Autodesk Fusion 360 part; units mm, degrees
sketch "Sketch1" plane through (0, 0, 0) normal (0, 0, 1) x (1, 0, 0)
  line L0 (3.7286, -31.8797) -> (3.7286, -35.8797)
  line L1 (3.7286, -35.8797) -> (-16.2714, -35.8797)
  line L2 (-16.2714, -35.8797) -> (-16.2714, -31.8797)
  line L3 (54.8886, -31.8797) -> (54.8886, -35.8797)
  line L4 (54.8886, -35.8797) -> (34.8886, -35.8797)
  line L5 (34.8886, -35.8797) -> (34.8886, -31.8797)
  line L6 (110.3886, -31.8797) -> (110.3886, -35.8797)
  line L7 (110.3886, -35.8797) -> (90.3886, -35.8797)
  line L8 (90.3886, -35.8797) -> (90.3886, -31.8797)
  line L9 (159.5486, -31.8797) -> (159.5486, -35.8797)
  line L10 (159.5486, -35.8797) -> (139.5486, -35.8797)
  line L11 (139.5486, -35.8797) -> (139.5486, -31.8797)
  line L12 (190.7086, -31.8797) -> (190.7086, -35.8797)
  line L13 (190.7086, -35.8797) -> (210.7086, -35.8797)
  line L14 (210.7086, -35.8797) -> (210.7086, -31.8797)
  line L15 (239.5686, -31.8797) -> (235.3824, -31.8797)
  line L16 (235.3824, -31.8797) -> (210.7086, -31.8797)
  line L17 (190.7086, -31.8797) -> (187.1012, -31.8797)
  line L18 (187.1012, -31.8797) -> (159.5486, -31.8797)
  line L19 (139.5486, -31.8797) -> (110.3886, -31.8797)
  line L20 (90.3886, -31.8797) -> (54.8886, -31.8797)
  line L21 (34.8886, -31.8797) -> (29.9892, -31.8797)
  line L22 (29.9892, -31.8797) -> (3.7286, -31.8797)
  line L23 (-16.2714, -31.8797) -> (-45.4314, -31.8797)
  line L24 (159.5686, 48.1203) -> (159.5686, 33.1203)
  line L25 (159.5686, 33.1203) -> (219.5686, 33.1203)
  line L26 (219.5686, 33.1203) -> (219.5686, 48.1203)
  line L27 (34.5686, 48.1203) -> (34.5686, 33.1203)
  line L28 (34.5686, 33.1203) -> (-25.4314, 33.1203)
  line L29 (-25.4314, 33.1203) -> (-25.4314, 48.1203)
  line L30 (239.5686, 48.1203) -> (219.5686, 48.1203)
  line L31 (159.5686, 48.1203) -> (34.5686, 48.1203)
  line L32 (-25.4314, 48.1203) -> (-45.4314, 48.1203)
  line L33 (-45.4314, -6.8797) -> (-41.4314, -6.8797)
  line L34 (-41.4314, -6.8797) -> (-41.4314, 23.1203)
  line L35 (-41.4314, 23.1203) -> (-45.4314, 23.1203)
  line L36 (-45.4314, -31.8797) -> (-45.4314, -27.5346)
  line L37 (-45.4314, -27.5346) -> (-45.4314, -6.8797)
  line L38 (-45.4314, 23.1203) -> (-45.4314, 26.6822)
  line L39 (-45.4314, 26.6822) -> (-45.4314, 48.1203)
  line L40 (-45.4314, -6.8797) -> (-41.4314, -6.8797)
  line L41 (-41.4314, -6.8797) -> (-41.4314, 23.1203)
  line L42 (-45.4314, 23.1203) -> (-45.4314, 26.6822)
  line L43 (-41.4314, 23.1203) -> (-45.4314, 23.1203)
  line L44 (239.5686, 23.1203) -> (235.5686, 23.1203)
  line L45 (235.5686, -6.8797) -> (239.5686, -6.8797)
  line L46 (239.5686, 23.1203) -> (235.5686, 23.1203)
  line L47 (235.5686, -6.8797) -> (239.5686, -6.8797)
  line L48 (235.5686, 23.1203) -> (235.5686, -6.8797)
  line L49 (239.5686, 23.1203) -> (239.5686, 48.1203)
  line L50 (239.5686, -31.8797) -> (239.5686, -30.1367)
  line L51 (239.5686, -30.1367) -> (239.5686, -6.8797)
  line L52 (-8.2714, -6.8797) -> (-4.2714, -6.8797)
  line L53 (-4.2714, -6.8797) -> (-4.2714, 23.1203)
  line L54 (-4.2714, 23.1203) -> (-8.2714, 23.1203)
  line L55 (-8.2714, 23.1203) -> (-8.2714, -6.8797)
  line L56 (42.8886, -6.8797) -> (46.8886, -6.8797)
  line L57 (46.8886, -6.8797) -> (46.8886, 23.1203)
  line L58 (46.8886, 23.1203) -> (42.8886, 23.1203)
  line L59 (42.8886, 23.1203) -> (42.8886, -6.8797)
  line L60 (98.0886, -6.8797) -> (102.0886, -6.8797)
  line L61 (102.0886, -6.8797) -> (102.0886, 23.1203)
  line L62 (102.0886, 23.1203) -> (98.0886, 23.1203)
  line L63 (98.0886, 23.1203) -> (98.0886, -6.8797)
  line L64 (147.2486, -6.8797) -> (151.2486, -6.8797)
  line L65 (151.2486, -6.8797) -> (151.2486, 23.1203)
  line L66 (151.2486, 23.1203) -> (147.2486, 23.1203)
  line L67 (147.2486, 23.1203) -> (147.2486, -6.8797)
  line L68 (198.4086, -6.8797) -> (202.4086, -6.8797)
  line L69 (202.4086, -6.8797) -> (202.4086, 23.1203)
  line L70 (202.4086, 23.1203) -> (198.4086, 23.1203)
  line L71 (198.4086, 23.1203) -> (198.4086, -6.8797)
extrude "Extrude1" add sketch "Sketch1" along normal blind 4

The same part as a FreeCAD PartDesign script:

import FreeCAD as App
import Part
import Sketcher
Q = App.Units.Quantity

doc = App.newDocument("Part")
params = doc.addObject("Spreadsheet::Sheet", "Params")
for row, (alias, value) in enumerate([
    ("sketch1_width", "20 mm"),
    ("sketch1_width2", "4 mm"),
    ("sketch1_width3", "60 mm"),
    ("sketch1_width4", "125 mm"),
    ("sketch1_height", "25 mm"),
    ("pad1_length", "4 mm"),
], start=1):
    params.set(f"A{row}", alias)
    params.set(f"B{row}", "=" + value)
    params.setAlias(f"B{row}", alias)

body = doc.addObject("PartDesign::Body", "Body")

# Sketch on XY plane
sketch1 = body.newObject("Sketcher::SketchObject", "Sketch")
sketch1.AttachmentSupport = (doc.getObject("XY_Plane"), [""])
sketch1.MapMode = "FlatFace"
sketch1.addGeometry([
    Part.LineSegment(App.Vector(3.7286, -35.8797, 0), App.Vector(3.7286, -31.8797, 0)),  # 0
    Part.LineSegment(App.Vector(3.7286, -31.8797, 0), App.Vector(34.8886, -31.8797, 0)),  # 1
    Part.LineSegment(App.Vector(34.8886, -31.8797, 0), App.Vector(34.8886, -35.8797, 0)),  # 2
    Part.LineSegment(App.Vector(34.8886, -35.8797, 0), App.Vector(54.8886, -35.8797, 0)),  # 3
    Part.LineSegment(App.Vector(54.8886, -35.8797, 0), App.Vector(54.8886, -31.8797, 0)),  # 4
    Part.LineSegment(App.Vector(54.8886, -31.8797, 0), App.Vector(90.3886, -31.8797, 0)),  # 5
    Part.LineSegment(App.Vector(90.3886, -31.8797, 0), App.Vector(90.3886, -35.8797, 0)),  # 6
    Part.LineSegment(App.Vector(90.3886, -35.8797, 0), App.Vector(110.3886, -35.8797, 0)),  # 7
    Part.LineSegment(App.Vector(110.3886, -35.8797, 0), App.Vector(110.3886, -31.8797, 0)),  # 8
    Part.LineSegment(App.Vector(110.3886, -31.8797, 0), App.Vector(139.5486, -31.8797, 0)),  # 9
    Part.LineSegment(App.Vector(139.5486, -31.8797, 0), App.Vector(139.5486, -35.8797, 0)),  # 10
    Part.LineSegment(App.Vector(139.5486, -35.8797, 0), App.Vector(159.5486, -35.8797, 0)),  # 11
    Part.LineSegment(App.Vector(159.5486, -35.8797, 0), App.Vector(159.5486, -31.8797, 0)),  # 12
    Part.LineSegment(App.Vector(159.5486, -31.8797, 0), App.Vector(190.7086, -31.8797, 0)),  # 13
    Part.LineSegment(App.Vector(190.7086, -31.8797, 0), App.Vector(190.7086, -35.8797, 0)),  # 14
    Part.LineSegment(App.Vector(190.7086, -35.8797, 0), App.Vector(210.7086, -35.8797, 0)),  # 15
    Part.LineSegment(App.Vector(210.7086, -35.8797, 0), App.Vector(210.7086, -31.8797, 0)),  # 16
    Part.LineSegment(App.Vector(210.7086, -31.8797, 0), App.Vector(239.5686, -31.8797, 0)),  # 17
    Part.LineSegment(App.Vector(239.5686, -31.8797, 0), App.Vector(239.5686, -6.8797, 0)),  # 18
    Part.LineSegment(App.Vector(239.5686, -6.8797, 0), App.Vector(235.5686, -6.8797, 0)),  # 19
    Part.LineSegment(App.Vector(235.5686, -6.8797, 0), App.Vector(235.5686, 23.1203, 0)),  # 20
    Part.LineSegment(App.Vector(235.5686, 23.1203, 0), App.Vector(239.5686, 23.1203, 0)),  # 21
    Part.LineSegment(App.Vector(239.5686, 23.1203, 0), App.Vector(239.5686, 48.1203, 0)),  # 22
    Part.LineSegment(App.Vector(239.5686, 48.1203, 0), App.Vector(219.5686, 48.1203, 0)),  # 23
    Part.LineSegment(App.Vector(219.5686, 48.1203, 0), App.Vector(219.5686, 33.1203, 0)),  # 24
    Part.LineSegment(App.Vector(219.5686, 33.1203, 0), App.Vector(159.5686, 33.1203, 0)),  # 25
    Part.LineSegment(App.Vector(159.5686, 33.1203, 0), App.Vector(159.5686, 48.1203, 0)),  # 26
    Part.LineSegment(App.Vector(159.5686, 48.1203, 0), App.Vector(34.5686, 48.1203, 0)),  # 27
    Part.LineSegment(App.Vector(34.5686, 48.1203, 0), App.Vector(34.5686, 33.1203, 0)),  # 28
    Part.LineSegment(App.Vector(34.5686, 33.1203, 0), App.Vector(-25.4314, 33.1203, 0)),  # 29
    Part.LineSegment(App.Vector(-25.4314, 33.1203, 0), App.Vector(-25.4314, 48.1203, 0)),  # 30
    Part.LineSegment(App.Vector(-25.4314, 48.1203, 0), App.Vector(-45.4314, 48.1203, 0)),  # 31
    Part.LineSegment(App.Vector(-45.4314, 48.1203, 0), App.Vector(-45.4314, 23.1203, 0)),  # 32
    Part.LineSegment(App.Vector(-45.4314, 23.1203, 0), App.Vector(-41.4314, 23.1203, 0)),  # 33
    Part.LineSegment(App.Vector(-41.4314, 23.1203, 0), App.Vector(-41.4314, -6.8797, 0)),  # 34
    Part.LineSegment(App.Vector(-41.4314, -6.8797, 0), App.Vector(-45.4314, -6.8797, 0)),  # 35
    Part.LineSegment(App.Vector(-45.4314, -6.8797, 0), App.Vector(-45.4314, -31.8797, 0)),  # 36
    Part.LineSegment(App.Vector(-45.4314, -31.8797, 0), App.Vector(-16.2714, -31.8797, 0)),  # 37
    Part.LineSegment(App.Vector(-16.2714, -31.8797, 0), App.Vector(-16.2714, -35.8797, 0)),  # 38
    Part.LineSegment(App.Vector(-16.2714, -35.8797, 0), App.Vector(3.7286, -35.8797, 0)),  # 39
    Part.LineSegment(App.Vector(-4.2714, -6.8797, 0), App.Vector(-8.2714, -6.8797, 0)),  # 40
    Part.LineSegment(App.Vector(-8.2714, -6.8797, 0), App.Vector(-8.2714, 23.1203, 0)),  # 41
    Part.LineSegment(App.Vector(-8.2714, 23.1203, 0), App.Vector(-4.2714, 23.1203, 0)),  # 42
    Part.LineSegment(App.Vector(-4.2714, 23.1203, 0), App.Vector(-4.2714, -6.8797, 0)),  # 43
    Part.LineSegment(App.Vector(46.8886, -6.8797, 0), App.Vector(42.8886, -6.8797, 0)),  # 44
    Part.LineSegment(App.Vector(42.8886, -6.8797, 0), App.Vector(42.8886, 23.1203, 0)),  # 45
    Part.LineSegment(App.Vector(42.8886, 23.1203, 0), App.Vector(46.8886, 23.1203, 0)),  # 46
    Part.LineSegment(App.Vector(46.8886, 23.1203, 0), App.Vector(46.8886, -6.8797, 0)),  # 47
    Part.LineSegment(App.Vector(102.0886, -6.8797, 0), App.Vector(98.0886, -6.8797, 0)),  # 48
    Part.LineSegment(App.Vector(98.0886, -6.8797, 0), App.Vector(98.0886, 23.1203, 0)),  # 49
    Part.LineSegment(App.Vector(98.0886, 23.1203, 0), App.Vector(102.0886, 23.1203, 0)),  # 50
    Part.LineSegment(App.Vector(102.0886, 23.1203, 0), App.Vector(102.0886, -6.8797, 0)),  # 51
    Part.LineSegment(App.Vector(151.2486, -6.8797, 0), App.Vector(147.2486, -6.8797, 0)),  # 52
    Part.LineSegment(App.Vector(147.2486, -6.8797, 0), App.Vector(147.2486, 23.1203, 0)),  # 53
    Part.LineSegment(App.Vector(147.2486, 23.1203, 0), App.Vector(151.2486, 23.1203, 0)),  # 54
    Part.LineSegment(App.Vector(151.2486, 23.1203, 0), App.Vector(151.2486, -6.8797, 0)),  # 55
    Part.LineSegment(App.Vector(202.4086, -6.8797, 0), App.Vector(198.4086, -6.8797, 0)),  # 56
    Part.LineSegment(App.Vector(198.4086, -6.8797, 0), App.Vector(198.4086, 23.1203, 0)),  # 57
    Part.LineSegment(App.Vector(198.4086, 23.1203, 0), App.Vector(202.4086, 23.1203, 0)),  # 58
    Part.LineSegment(App.Vector(202.4086, 23.1203, 0), App.Vector(202.4086, -6.8797, 0)),  # 59
], False)
sketch1.addConstraint([
    Sketcher.Constraint("Coincident", 0, 2, 1, 1),
    Sketcher.Constraint("Coincident", 1, 2, 2, 1),
    Sketcher.Constraint("Coincident", 2, 2, 3, 1),
    Sketcher.Constraint("Coincident", 3, 2, 4, 1),
    Sketcher.Constraint("Coincident", 4, 2, 5, 1),
    Sketcher.Constraint("Coincident", 5, 2, 6, 1),
    Sketcher.Constraint("Coincident", 6, 2, 7, 1),
    Sketcher.Constraint("Coincident", 7, 2, 8, 1),
    Sketcher.Constraint("Coincident", 8, 2, 9, 1),
    Sketcher.Constraint("Coincident", 9, 2, 10, 1),
    Sketcher.Constraint("Coincident", 10, 2, 11, 1),
    Sketcher.Constraint("Coincident", 11, 2, 12, 1),
    Sketcher.Constraint("Coincident", 12, 2, 13, 1),
    Sketcher.Constraint("Coincident", 13, 2, 14, 1),
    Sketcher.Constraint("Coincident", 14, 2, 15, 1),
    Sketcher.Constraint("Coincident", 15, 2, 16, 1),
    Sketcher.Constraint("Coincident", 16, 2, 17, 1),
    Sketcher.Constraint("Coincident", 17, 2, 18, 1),
    Sketcher.Constraint("Coincident", 18, 2, 19, 1),
    Sketcher.Constraint("Coincident", 19, 2, 20, 1),
    Sketcher.Constraint("Coincident", 20, 2, 21, 1),
    Sketcher.Constraint("Coincident", 21, 2, 22, 1),
    Sketcher.Constraint("Coincident", 22, 2, 23, 1),
    Sketcher.Constraint("Coincident", 23, 2, 24, 1),
    Sketcher.Constraint("Coincident", 24, 2, 25, 1),
    Sketcher.Constraint("Coincident", 25, 2, 26, 1),
    Sketcher.Constraint("Coincident", 26, 2, 27, 1),
    Sketcher.Constraint("Coincident", 27, 2, 28, 1),
    Sketcher.Constraint("Coincident", 28, 2, 29, 1),
    Sketcher.Constraint("Coincident", 29, 2, 30, 1),
    Sketcher.Constraint("Coincident", 30, 2, 31, 1),
    Sketcher.Constraint("Coincident", 31, 2, 32, 1),
    Sketcher.Constraint("Coincident", 32, 2, 33, 1),
    Sketcher.Constraint("Coincident", 33, 2, 34, 1),
    Sketcher.Constraint("Coincident", 34, 2, 35, 1),
    Sketcher.Constraint("Coincident", 35, 2, 36, 1),
    Sketcher.Constraint("Coincident", 36, 2, 37, 1),
    Sketcher.Constraint("Coincident", 37, 2, 38, 1),
    Sketcher.Constraint("Coincident", 38, 2, 39, 1),
    Sketcher.Constraint("Coincident", 39, 2, 0, 1),
    Sketcher.Constraint("Coincident", 40, 2, 41, 1),
    Sketcher.Constraint("Coincident", 41, 2, 42, 1),
    Sketcher.Constraint("Coincident", 42, 2, 43, 1),
    Sketcher.Constraint("Coincident", 43, 2, 40, 1),
    Sketcher.Constraint("Coincident", 44, 2, 45, 1),
    Sketcher.Constraint("Coincident", 45, 2, 46, 1),
    Sketcher.Constraint("Coincident", 46, 2, 47, 1),
    Sketcher.Constraint("Coincident", 47, 2, 44, 1),
    Sketcher.Constraint("Coincident", 48, 2, 49, 1),
    Sketcher.Constraint("Coincident", 49, 2, 50, 1),
    Sketcher.Constraint("Coincident", 50, 2, 51, 1),
    Sketcher.Constraint("Coincident", 51, 2, 48, 1),
    Sketcher.Constraint("Coincident", 52, 2, 53, 1),
    Sketcher.Constraint("Coincident", 53, 2, 54, 1),
    Sketcher.Constraint("Coincident", 54, 2, 55, 1),
    Sketcher.Constraint("Coincident", 55, 2, 52, 1),
    Sketcher.Constraint("Coincident", 56, 2, 57, 1),
    Sketcher.Constraint("Coincident", 57, 2, 58, 1),
    Sketcher.Constraint("Coincident", 58, 2, 59, 1),
    Sketcher.Constraint("Coincident", 59, 2, 56, 1),
    Sketcher.Constraint("Vertical", 0),
    Sketcher.Constraint("Horizontal", 1),
    Sketcher.Constraint("Vertical", 2),
    Sketcher.Constraint("Horizontal", 3),
    Sketcher.Constraint("Vertical", 4),
    Sketcher.Constraint("Horizontal", 5),
    Sketcher.Constraint("Vertical", 6),
    Sketcher.Constraint("Horizontal", 7),
    Sketcher.Constraint("Vertical", 8),
    Sketcher.Constraint("Horizontal", 9),
    Sketcher.Constraint("Vertical", 10),
    Sketcher.Constraint("Horizontal", 11),
    Sketcher.Constraint("Vertical", 12),
    Sketcher.Constraint("Horizontal", 13),
    Sketcher.Constraint("Vertical", 14),
    Sketcher.Constraint("Horizontal", 15),
    Sketcher.Constraint("Vertical", 16),
    Sketcher.Constraint("Horizontal", 17),
    Sketcher.Constraint("Vertical", 18),
    Sketcher.Constraint("Horizontal", 19),
    Sketcher.Constraint("Vertical", 20),
    Sketcher.Constraint("Horizontal", 21),
    Sketcher.Constraint("Vertical", 22),
    Sketcher.Constraint("Horizontal", 23),
    Sketcher.Constraint("Vertical", 24),
    Sketcher.Constraint("Horizontal", 25),
    Sketcher.Constraint("Vertical", 26),
    Sketcher.Constraint("Horizontal", 27),
    Sketcher.Constraint("Vertical", 28),
    Sketcher.Constraint("Horizontal", 29),
    Sketcher.Constraint("Vertical", 30),
    Sketcher.Constraint("Horizontal", 31),
    Sketcher.Constraint("Vertical", 32),
    Sketcher.Constraint("Horizontal", 33),
    Sketcher.Constraint("Vertical", 34),
    Sketcher.Constraint("Horizontal", 35),
    Sketcher.Constraint("Vertical", 36),
    Sketcher.Constraint("Horizontal", 37),
    Sketcher.Constraint("Vertical", 38),
    Sketcher.Constraint("Horizontal", 39),
    Sketcher.Constraint("Horizontal", 40),
    Sketcher.Constraint("Vertical", 41),
    Sketcher.Constraint("Horizontal", 42),
    Sketcher.Constraint("Vertical", 43),
    Sketcher.Constraint("Horizontal", 44),
    Sketcher.Constraint("Vertical", 45),
    Sketcher.Constraint("Horizontal", 46),
    Sketcher.Constraint("Vertical", 47),
    Sketcher.Constraint("Horizontal", 48),
    Sketcher.Constraint("Vertical", 49),
    Sketcher.Constraint("Horizontal", 50),
    Sketcher.Constraint("Vertical", 51),
    Sketcher.Constraint("Horizontal", 52),
    Sketcher.Constraint("Vertical", 53),
    Sketcher.Constraint("Horizontal", 54),
    Sketcher.Constraint("Vertical", 55),
    Sketcher.Constraint("Horizontal", 56),
    Sketcher.Constraint("Vertical", 57),
    Sketcher.Constraint("Horizontal", 58),
    Sketcher.Constraint("Vertical", 59),
    Sketcher.Constraint("Horizontal", 1, 2, 4, 2),
    Sketcher.Constraint("Horizontal", 3, 2, 6, 2),
    Sketcher.Constraint("Horizontal", 5, 2, 8, 2),
    Sketcher.Constraint("Horizontal", 7, 2, 10, 2),
    Sketcher.Constraint("Horizontal", 9, 2, 12, 2),
    Sketcher.Constraint("Horizontal", 11, 2, 14, 2),
    Sketcher.Constraint("Horizontal", 13, 2, 16, 2),
    Sketcher.Constraint("Horizontal", 23, 2, 26, 2),
    Sketcher.Constraint("Horizontal", 25, 2, 28, 2),
    Sketcher.Constraint("Horizontal", 27, 2, 30, 2),
    Sketcher.Constraint("Horizontal", 21, 2, 32, 2),
    Sketcher.Constraint("Horizontal", 19, 2, 34, 2),
    Sketcher.Constraint("Horizontal", 17, 2, 36, 2),
    Sketcher.Constraint("Horizontal", 15, 2, 38, 2),
    Sketcher.Constraint("Horizontal", 35, 2, 40, 2),
    Sketcher.Constraint("Horizontal", 33, 2, 41, 2),
    Sketcher.Constraint("Horizontal", 43, 2, 44, 2),
    Sketcher.Constraint("Horizontal", 42, 2, 45, 2),
    Sketcher.Constraint("Horizontal", 47, 2, 48, 2),
    Sketcher.Constraint("Horizontal", 46, 2, 49, 2),
    Sketcher.Constraint("Horizontal", 51, 2, 52, 2),
    Sketcher.Constraint("Horizontal", 50, 2, 53, 2),
    Sketcher.Constraint("Horizontal", 55, 2, 56, 2),
    Sketcher.Constraint("Horizontal", 54, 2, 57, 2),
    Sketcher.Constraint("Vertical", 18, 2, 21, 2),
    Sketcher.Constraint("Vertical", 32, 2, 35, 2),
    Sketcher.Constraint("Equal", 3, 7),
    Sketcher.Constraint("Equal", 7, 11),
    Sketcher.Constraint("Equal", 1, 13),
    Sketcher.Constraint("Equal", 11, 15),
    Sketcher.Constraint("Equal", 15, 23),
    Sketcher.Constraint("Equal", 25, 29),
    Sketcher.Constraint("Equal", 23, 31),
    Sketcher.Constraint("Equal", 21, 33),
    Sketcher.Constraint("Equal", 9, 37),
    Sketcher.Constraint("Equal", 31, 39),
    Sketcher.Constraint("Equal", 35, 40),
    Sketcher.Constraint("Equal", 42, 44),
    Sketcher.Constraint("Equal", 46, 48),
    Sketcher.Constraint("Equal", 50, 52),
    Sketcher.Constraint("Equal", 54, 56),
    Sketcher.Constraint("Equal", 58, 0),
    Sketcher.Constraint("Equal", 18, 22),
    Sketcher.Constraint("DistanceX", 3, 1, 3, 2, Q("20 mm")),
    Sketcher.Constraint("DistanceX", 19, 2, 19, 1, Q("4 mm")),
    Sketcher.Constraint("DistanceX", 25, 2, 25, 1, Q("60 mm")),
    Sketcher.Constraint("DistanceX", 27, 2, 27, 1, Q("125 mm")),
    Sketcher.Constraint("DistanceY", 18, 1, 18, 2, Q("25 mm")),
    Sketcher.Constraint("DistanceY", 20, 1, 20, 2, Q("30 mm")),
    Sketcher.Constraint("DistanceY", 24, 2, 24, 1, Q("15 mm")),
    Sketcher.Constraint("DistanceX", 5, 1, 5, 2, Q("35.5 mm")),
    Sketcher.Constraint("DistanceX", 37, 2, 40, 2, Q("8 mm")),
    Sketcher.Constraint("DistanceX", 1, 2, 44, 2, Q("8 mm")),
    Sketcher.Constraint("DistanceX", 1, 1, 1, 2, Q("31.16 mm")),
    Sketcher.Constraint("DistanceX", 9, 1, 9, 2, Q("29.16 mm")),
    Sketcher.Constraint("DistanceX", 5, 2, 48, 2, Q("7.7 mm")),
    Sketcher.Constraint("DistanceX", 9, 2, 52, 2, Q("7.7 mm")),
    Sketcher.Constraint("DistanceX", 13, 2, 56, 2, Q("7.7 mm")),
    Sketcher.Constraint("DistanceX", -1, 1, 0, 2, Q("3.7286 mm")),
    Sketcher.Constraint("DistanceY", 0, 2, -1, 1, Q("31.8797 mm")),
])
sketch1.setExpression("Constraints[163]", "Params.sketch1_width")
sketch1.setExpression("Constraints[164]", "Params.sketch1_width2")
sketch1.setExpression("Constraints[165]", "Params.sketch1_width3")
sketch1.setExpression("Constraints[166]", "Params.sketch1_width4")
sketch1.setExpression("Constraints[167]", "Params.sketch1_height")
pad1 = body.newObject("PartDesign::Pad", "Pad")
pad1.Profile = sketch1
pad1.setExpression("Length", "Params.pad1_length")

doc.recompute()
